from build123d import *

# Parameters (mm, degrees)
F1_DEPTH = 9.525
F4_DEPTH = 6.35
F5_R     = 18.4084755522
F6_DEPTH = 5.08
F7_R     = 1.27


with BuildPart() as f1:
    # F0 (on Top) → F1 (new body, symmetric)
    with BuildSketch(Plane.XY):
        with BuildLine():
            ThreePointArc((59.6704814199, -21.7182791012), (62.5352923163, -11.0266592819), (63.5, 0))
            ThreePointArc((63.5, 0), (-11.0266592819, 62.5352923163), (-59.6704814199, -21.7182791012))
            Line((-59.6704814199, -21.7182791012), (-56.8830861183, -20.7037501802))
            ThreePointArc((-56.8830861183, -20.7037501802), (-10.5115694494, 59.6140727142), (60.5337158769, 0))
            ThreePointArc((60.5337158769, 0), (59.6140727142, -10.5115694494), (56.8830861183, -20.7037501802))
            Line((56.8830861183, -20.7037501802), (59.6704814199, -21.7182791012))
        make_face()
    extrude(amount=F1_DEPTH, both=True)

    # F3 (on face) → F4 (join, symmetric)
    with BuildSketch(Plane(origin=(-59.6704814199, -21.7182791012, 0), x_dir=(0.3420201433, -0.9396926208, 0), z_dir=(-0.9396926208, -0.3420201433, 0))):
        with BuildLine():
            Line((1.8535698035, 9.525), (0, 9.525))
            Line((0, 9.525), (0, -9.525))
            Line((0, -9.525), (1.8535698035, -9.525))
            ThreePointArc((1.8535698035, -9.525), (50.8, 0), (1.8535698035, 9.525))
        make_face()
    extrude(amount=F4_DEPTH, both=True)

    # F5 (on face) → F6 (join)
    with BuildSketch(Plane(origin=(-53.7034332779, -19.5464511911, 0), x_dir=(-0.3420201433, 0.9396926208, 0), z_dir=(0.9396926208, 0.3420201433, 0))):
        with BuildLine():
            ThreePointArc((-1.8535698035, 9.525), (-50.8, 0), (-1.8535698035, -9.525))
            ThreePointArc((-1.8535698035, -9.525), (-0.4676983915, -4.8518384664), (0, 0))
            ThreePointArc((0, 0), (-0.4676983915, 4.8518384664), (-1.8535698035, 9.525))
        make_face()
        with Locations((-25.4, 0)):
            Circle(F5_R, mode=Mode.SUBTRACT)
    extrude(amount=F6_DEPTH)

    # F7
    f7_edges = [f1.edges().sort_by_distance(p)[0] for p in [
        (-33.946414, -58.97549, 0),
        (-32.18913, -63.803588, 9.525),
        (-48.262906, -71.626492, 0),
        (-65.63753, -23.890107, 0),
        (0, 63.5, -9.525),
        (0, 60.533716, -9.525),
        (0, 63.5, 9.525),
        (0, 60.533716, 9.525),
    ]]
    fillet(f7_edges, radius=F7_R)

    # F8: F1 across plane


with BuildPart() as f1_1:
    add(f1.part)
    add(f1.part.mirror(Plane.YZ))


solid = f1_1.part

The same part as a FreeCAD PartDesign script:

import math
import FreeCAD as App
import Part
import Sketcher
from FreeCAD import Vector
Q = App.Units.Quantity


def edges_at(feature, points):
    """Names of the edges that pass closest to the given points."""
    edges = feature.Shape.Edges
    near = lambda p: min(range(len(edges)), key=lambda i: edges[i].distToShape(Part.Vertex(*p))[0])
    return sorted({f"Edge{near(p) + 1}" for p in points})

doc = App.newDocument("Part")
body = doc.addObject("PartDesign::Body", "Body")

sketch1 = doc.addObject("Sketcher::SketchObject", "Sketch")
body.addObject(sketch1)
sketch1.AttachmentSupport = (doc.XY_Plane, [""])
sketch1.MapMode = "FlatFace"
sketch1.addGeometry(Part.ArcOfCircle(Part.Circle(Vector(0, 0, 0), Vector(0, 0, 1), 63.5), math.radians(-20), math.radians(0)), False)
sketch1.addGeometry(Part.ArcOfCircle(Part.Circle(Vector(0, 0, 0), Vector(0, 0, 1), 63.5), math.radians(0), math.radians(200)), False)
sketch1.addGeometry(Part.LineSegment(Vector(-59.670481, -21.718279, 0), Vector(-56.883086, -20.70375, 0)), False)
sketch1.addGeometry(Part.ArcOfCircle(Part.Circle(Vector(0, 0, 0), Vector(0, 0, 1), 60.533716), math.radians(0), math.radians(200)), False)
sketch1.addGeometry(Part.ArcOfCircle(Part.Circle(Vector(0, 0, 0), Vector(0, 0, 1), 60.533716), math.radians(-20), math.radians(0)), False)
sketch1.addGeometry(Part.LineSegment(Vector(56.883086, -20.70375, 0), Vector(59.670481, -21.718279, 0)), False)
sketch1.addConstraint(Sketcher.Constraint("Tangent", 0, 2, 1, 1))
sketch1.addConstraint(Sketcher.Constraint("Coincident", 1, 2, 2, 1))
sketch1.addConstraint(Sketcher.Constraint("Coincident", 2, 2, 3, 2))
sketch1.addConstraint(Sketcher.Constraint("Tangent", 3, 1, 4, 2))
sketch1.addConstraint(Sketcher.Constraint("Coincident", 4, 1, 5, 1))
sketch1.addConstraint(Sketcher.Constraint("Coincident", 5, 2, 0, 1))
sketch1.addConstraint(Sketcher.Constraint("Coincident", 0, 3, -1, 1))
sketch1.addConstraint(Sketcher.Constraint("Coincident", 3, 3, -1, 1))
sketch1.addConstraint(Sketcher.Constraint("Equal", 0, 1))
sketch1.addConstraint(Sketcher.Constraint("Equal", 3, 4))
sketch1.addConstraint(Sketcher.Constraint("PointOnObject", 0, 2, -1))
sketch1.addConstraint(Sketcher.Constraint("PointOnObject", 3, 1, -1))
sketch1.addConstraint(Sketcher.Constraint("Horizontal", 2, 2, 4, 1))
sketch1.addConstraint(Sketcher.Constraint("Horizontal", 1, 2, 5, 2))
sketch1.addConstraint(Sketcher.Constraint("Radius", 0, Q("2.5 in")))
sketch1.addConstraint(Sketcher.Constraint("Angle", 2, Q("20 deg")))
sketch1.addConstraint(Sketcher.Constraint("Radius", 3, Q("60.533716 mm")))
sketch1.addConstraint(Sketcher.Constraint("DistanceX", 1, 2, -1, 1, Q("59.670481 mm")))
pad1 = doc.addObject("PartDesign::Pad", "Pad")
body.addObject(pad1)
pad1.Profile = sketch1
pad1.Length = Q("0.75 in")
pad1.Midplane = True

sketch2 = doc.addObject("Sketcher::SketchObject", "Sketch001")
body.addObject(sketch2)
sketch2.Placement = App.Placement(Vector(-59.670481, -21.718279, 0), App.Rotation(Vector(0.342020143, -0.939692621, 0), Vector(0, 0, 1), Vector(-0.939692621, -0.342020143, 0), "ZXY"))
sketch2.addGeometry(Part.LineSegment(Vector(1.85357, 9.525, 0), Vector(0, 9.525, 0)), False)
sketch2.addGeometry(Part.LineSegment(Vector(0, 9.525, 0), Vector(0, -9.525, 0)), False)
sketch2.addGeometry(Part.LineSegment(Vector(0, -9.525, 0), Vector(1.85357, -9.525, 0)), False)
sketch2.addGeometry(Part.ArcOfCircle(Part.Circle(Vector(25.4, 0, 0), Vector(0, 0, 1), 25.4), math.radians(-157.975687), math.radians(157.975687)), False)
sketch2.addConstraint(Sketcher.Constraint("Coincident", 0, 2, 1, 1))
sketch2.addConstraint(Sketcher.Constraint("Coincident", 1, 2, 2, 1))
sketch2.addConstraint(Sketcher.Constraint("Coincident", 2, 2, 3, 1))
sketch2.addConstraint(Sketcher.Constraint("Coincident", 3, 2, 0, 1))
sketch2.addConstraint(Sketcher.Constraint("Horizontal", 0))
sketch2.addConstraint(Sketcher.Constraint("Vertical", 1))
sketch2.addConstraint(Sketcher.Constraint("Horizontal", 2))
sketch2.addConstraint(Sketcher.Constraint("Symmetric", 0, 2, 1, 2, -1, 1))
sketch2.addConstraint(Sketcher.Constraint("PointOnObject", 3, 3, -1))
sketch2.addConstraint(Sketcher.Constraint("Radius", 3, Q("1 in")))
sketch2.addConstraint(Sketcher.Constraint("DistanceX", -1, 1, 3, 3, Q("1 in")))
sketch2.addConstraint(Sketcher.Constraint("DistanceY", 1, 2, 1, 1, Q("0.75 in")))
pad2 = doc.addObject("PartDesign::Pad", "Pad001")
body.addObject(pad2)
pad2.Profile = sketch2
pad2.Length = Q("0.5 in")
pad2.Midplane = True

sketch3 = doc.addObject("Sketcher::SketchObject", "Sketch002")
body.addObject(sketch3)
sketch3.Placement = App.Placement(Vector(-53.703433, -19.546451, 0), App.Rotation(Vector(-0.342020143, 0.939692621, 0), Vector(0, 0, 1), Vector(0.939692621, 0.342020143, 0), "ZXY"))
sketch3.addGeometry(Part.ArcOfCircle(Part.Circle(Vector(-25.4, 0, 0), Vector(0, 0, 1), 25.4), math.radians(22.024313), math.radians(337.975687)), False)
sketch3.addGeometry(Part.ArcOfCircle(Part.Circle(Vector(-25.4, 0, 0), Vector(0, 0, 1), 25.4), math.radians(-22.024313), math.radians(0)), False)
sketch3.addGeometry(Part.ArcOfCircle(Part.Circle(Vector(-25.4, 0, 0), Vector(0, 0, 1), 25.4), math.radians(0), math.radians(22.024313)), False)
sketch3.addGeometry(Part.Circle(Vector(-25.4, 0, 0), Vector(0, 0, 1), 18.408476), False)
sketch3.addConstraint(Sketcher.Constraint("Tangent", 0, 2, 1, 1))
sketch3.addConstraint(Sketcher.Constraint("Tangent", 1, 2, 2, 1))
sketch3.addConstraint(Sketcher.Constraint("Tangent", 2, 2, 0, 1))
sketch3.addConstraint(Sketcher.Constraint("Coincident", 1, 2, -1, 1))
sketch3.addConstraint(Sketcher.Constraint("Coincident", 3, 3, 0, 3))
sketch3.addConstraint(Sketcher.Constraint("Symmetric", 0, 2, 2, 2, -1))
sketch3.addConstraint(Sketcher.Constraint("Radius", 0, Q("1 in")))
sketch3.addConstraint(Sketcher.Constraint("DistanceY", 0, 2, 2, 2, Q("0.75 in")))
sketch3.addConstraint(Sketcher.Constraint("Diameter", 3, Q("36.816951 mm")))
pad3 = doc.addObject("PartDesign::Pad", "Pad002")
body.addObject(pad3)
pad3.Profile = sketch3
pad3.Length = Q("0.2 in")
doc.recompute()

fillet = doc.addObject("PartDesign::Fillet", "Fillet")
body.addObject(fillet)
fillet.Base = (pad3, edges_at(pad3, [
    (-33.946, -58.975, 0),
    (-31.555, -65.545, 0),
    (-48.263, -71.626, 0),
    (-65.638, -23.89, 0),
    (-11.027, 62.535, -9.525),
    (-10.512, 59.614, -9.525),
    (-11.027, 62.535, 9.525),
    (-10.512, 59.614, 9.525),
]))
fillet.Radius = Q("0.05 in")
body2 = doc.addObject("PartDesign::Body", "Body001")
doc.recompute()

body2.BaseFeature = body
doc.recompute()

mirroring = doc.addObject("Part::Mirroring", "Mirroring")
mirroring.Source = body
mirroring.Base = Vector(0, 0, 0)
mirroring.Normal = Vector(1, 0, 0)
body3 = doc.addObject("PartDesign::Body", "Body002")
body3.BaseFeature = mirroring
boolean = doc.addObject("PartDesign::Boolean", "Boolean")
body2.addObject(boolean)
boolean.Type = "Fuse"
boolean.addObjects([body3])
doc.recompute()
mirroring.Visibility = False

doc.recompute()
